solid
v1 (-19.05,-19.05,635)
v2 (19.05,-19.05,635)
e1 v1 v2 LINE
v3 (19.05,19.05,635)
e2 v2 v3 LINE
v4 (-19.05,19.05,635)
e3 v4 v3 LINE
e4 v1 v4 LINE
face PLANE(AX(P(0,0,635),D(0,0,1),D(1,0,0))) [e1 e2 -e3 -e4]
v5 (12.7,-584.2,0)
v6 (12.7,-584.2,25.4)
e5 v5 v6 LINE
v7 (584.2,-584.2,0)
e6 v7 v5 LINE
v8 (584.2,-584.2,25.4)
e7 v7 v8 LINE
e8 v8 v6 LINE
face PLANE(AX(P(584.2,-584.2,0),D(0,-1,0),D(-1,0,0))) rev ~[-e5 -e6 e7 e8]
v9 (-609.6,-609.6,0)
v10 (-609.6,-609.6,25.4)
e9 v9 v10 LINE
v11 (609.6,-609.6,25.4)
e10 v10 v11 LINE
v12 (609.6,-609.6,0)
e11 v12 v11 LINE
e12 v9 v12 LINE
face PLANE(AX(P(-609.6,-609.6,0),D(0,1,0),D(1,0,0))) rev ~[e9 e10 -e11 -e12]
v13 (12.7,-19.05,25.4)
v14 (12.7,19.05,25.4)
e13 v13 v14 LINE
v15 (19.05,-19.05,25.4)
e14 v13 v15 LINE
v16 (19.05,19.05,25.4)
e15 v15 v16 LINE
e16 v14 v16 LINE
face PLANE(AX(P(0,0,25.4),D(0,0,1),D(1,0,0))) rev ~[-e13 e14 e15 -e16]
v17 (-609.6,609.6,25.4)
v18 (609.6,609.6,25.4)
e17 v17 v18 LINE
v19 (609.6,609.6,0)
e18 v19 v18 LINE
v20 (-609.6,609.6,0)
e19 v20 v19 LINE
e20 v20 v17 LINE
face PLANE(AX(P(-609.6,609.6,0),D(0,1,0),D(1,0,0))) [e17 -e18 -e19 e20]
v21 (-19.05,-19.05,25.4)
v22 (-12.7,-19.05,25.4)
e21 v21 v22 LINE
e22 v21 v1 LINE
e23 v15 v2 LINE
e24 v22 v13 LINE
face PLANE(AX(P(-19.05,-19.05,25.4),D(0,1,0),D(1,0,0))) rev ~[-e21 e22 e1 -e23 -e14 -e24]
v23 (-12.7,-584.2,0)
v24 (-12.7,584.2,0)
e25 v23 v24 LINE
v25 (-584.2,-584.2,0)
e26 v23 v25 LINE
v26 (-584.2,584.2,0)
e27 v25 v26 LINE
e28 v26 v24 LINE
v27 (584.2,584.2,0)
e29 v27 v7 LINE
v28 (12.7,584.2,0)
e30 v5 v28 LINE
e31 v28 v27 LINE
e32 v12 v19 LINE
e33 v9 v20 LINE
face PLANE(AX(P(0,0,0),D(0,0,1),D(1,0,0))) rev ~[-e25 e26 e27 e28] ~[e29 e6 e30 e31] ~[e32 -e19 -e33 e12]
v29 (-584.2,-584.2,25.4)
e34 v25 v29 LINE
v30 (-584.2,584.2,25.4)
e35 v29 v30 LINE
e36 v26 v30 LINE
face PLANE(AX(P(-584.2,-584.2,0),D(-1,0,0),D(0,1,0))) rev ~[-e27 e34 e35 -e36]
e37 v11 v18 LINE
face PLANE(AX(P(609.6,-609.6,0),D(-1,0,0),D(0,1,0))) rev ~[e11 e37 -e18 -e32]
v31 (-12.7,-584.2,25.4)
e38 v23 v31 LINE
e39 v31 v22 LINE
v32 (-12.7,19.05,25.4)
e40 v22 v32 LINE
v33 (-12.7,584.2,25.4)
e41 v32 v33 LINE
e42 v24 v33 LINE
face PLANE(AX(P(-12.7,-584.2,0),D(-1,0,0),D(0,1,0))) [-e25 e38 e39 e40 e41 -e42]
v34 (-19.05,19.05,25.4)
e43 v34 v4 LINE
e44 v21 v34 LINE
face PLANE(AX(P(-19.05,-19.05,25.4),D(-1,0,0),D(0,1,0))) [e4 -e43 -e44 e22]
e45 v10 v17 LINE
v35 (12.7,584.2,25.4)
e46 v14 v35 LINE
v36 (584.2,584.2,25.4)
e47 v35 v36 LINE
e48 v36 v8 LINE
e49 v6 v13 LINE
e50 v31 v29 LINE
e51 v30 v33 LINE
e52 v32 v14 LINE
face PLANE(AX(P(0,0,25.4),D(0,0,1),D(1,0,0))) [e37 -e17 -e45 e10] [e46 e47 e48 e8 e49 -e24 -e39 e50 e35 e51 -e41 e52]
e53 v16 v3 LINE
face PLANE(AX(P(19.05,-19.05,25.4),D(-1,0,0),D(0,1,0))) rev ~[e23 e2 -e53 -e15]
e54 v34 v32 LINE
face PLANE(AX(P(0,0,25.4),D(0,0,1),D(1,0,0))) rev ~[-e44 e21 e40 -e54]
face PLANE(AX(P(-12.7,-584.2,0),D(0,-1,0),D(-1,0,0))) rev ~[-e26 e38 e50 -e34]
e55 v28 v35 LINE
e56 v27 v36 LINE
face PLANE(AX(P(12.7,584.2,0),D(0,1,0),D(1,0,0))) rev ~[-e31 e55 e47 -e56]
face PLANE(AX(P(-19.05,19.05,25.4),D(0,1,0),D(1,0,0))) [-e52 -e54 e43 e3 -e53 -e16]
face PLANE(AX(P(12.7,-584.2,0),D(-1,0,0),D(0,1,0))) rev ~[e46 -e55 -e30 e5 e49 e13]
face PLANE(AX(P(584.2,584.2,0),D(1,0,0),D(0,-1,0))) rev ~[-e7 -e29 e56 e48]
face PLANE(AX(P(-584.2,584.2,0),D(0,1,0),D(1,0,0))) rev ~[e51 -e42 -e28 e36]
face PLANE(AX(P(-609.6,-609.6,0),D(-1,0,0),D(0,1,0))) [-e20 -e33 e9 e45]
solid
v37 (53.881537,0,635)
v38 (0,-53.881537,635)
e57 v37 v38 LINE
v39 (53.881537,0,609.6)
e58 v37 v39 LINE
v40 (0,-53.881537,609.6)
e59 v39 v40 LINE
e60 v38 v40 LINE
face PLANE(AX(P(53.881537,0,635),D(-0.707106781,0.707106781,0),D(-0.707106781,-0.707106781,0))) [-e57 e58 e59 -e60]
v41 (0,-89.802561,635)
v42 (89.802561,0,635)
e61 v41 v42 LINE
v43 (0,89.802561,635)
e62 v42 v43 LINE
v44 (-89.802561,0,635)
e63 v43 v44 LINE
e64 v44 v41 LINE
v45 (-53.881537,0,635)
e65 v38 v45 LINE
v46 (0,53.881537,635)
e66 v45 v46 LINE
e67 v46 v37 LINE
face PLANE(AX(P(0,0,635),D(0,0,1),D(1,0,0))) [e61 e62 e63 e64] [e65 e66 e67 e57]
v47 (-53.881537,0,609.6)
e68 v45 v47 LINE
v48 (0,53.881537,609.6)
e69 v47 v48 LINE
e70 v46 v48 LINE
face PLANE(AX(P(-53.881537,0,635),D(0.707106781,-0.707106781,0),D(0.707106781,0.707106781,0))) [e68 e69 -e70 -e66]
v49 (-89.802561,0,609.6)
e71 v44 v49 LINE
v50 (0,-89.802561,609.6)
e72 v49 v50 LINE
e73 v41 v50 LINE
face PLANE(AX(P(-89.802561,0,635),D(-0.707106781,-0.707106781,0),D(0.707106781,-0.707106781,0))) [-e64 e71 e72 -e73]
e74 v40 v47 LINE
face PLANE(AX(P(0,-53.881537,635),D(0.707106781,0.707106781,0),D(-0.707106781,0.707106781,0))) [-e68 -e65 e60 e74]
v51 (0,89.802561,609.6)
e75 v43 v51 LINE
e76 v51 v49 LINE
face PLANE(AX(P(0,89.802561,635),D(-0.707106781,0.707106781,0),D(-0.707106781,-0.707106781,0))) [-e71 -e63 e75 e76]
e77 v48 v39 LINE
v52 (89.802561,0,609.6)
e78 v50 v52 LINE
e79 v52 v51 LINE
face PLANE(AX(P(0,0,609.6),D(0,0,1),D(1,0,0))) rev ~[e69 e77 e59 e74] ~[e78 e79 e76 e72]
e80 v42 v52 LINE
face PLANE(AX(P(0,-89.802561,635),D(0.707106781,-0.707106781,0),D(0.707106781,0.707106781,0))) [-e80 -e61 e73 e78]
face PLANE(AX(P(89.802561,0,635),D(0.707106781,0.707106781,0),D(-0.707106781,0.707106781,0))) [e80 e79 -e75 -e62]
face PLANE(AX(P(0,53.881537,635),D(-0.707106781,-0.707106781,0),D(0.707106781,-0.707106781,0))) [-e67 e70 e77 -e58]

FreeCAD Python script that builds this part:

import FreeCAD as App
import Part
import Sketcher
from FreeCAD import Vector
Q = App.Units.Quantity

doc = App.newDocument("Part")
body = doc.addObject("PartDesign::Body", "Body")

# Sketch on XY plane
sketch1 = doc.addObject("Sketcher::SketchObject", "Sketch")
body.addObject(sketch1)
sketch1.AttachmentSupport = (doc.XY_Plane, [""])
sketch1.MapMode = "FlatFace"
sketch1.addGeometry([
    Part.LineSegment(Vector(-609.6, 609.6, 0), Vector(-609.6, -609.6, 0)),  # 0
    Part.LineSegment(Vector(-609.6, -609.6, 0), Vector(609.6, -609.6, 0)),  # 1
    Part.LineSegment(Vector(609.6, -609.6, 0), Vector(609.6, 609.6, 0)),  # 2
    Part.LineSegment(Vector(609.6, 609.6, 0), Vector(-609.6, 609.6, 0)),  # 3
    Part.LineSegment(Vector(584.2, -584.2, 0), Vector(12.7, -584.2, 0)),  # 4
    Part.LineSegment(Vector(12.7, -584.2, 0), Vector(12.7, 584.2, 0)),  # 5
    Part.LineSegment(Vector(12.7, 584.2, 0), Vector(584.2, 584.2, 0)),  # 6
    Part.LineSegment(Vector(584.2, 584.2, 0), Vector(584.2, -584.2, 0)),  # 7
    Part.LineSegment(Vector(-12.7, -584.2, 0), Vector(-584.2, -584.2, 0)),  # 8
    Part.LineSegment(Vector(-584.2, -584.2, 0), Vector(-584.2, 584.2, 0)),  # 9
    Part.LineSegment(Vector(-584.2, 584.2, 0), Vector(-12.7, 584.2, 0)),  # 10
    Part.LineSegment(Vector(-12.7, 584.2, 0), Vector(-12.7, -584.2, 0)),  # 11
], False)
sketch1.addConstraint([
    Sketcher.Constraint("Coincident", 0, 2, 1, 1),
    Sketcher.Constraint("Coincident", 1, 2, 2, 1),
    Sketcher.Constraint("Coincident", 2, 2, 3, 1),
    Sketcher.Constraint("Coincident", 3, 2, 0, 1),
    Sketcher.Constraint("Coincident", 4, 2, 5, 1),
    Sketcher.Constraint("Coincident", 5, 2, 6, 1),
    Sketcher.Constraint("Coincident", 6, 2, 7, 1),
    Sketcher.Constraint("Coincident", 7, 2, 4, 1),
    Sketcher.Constraint("Coincident", 8, 2, 9, 1),
    Sketcher.Constraint("Coincident", 9, 2, 10, 1),
    Sketcher.Constraint("Coincident", 10, 2, 11, 1),
    Sketcher.Constraint("Coincident", 11, 2, 8, 1),
    Sketcher.Constraint("Vertical", 0),
    Sketcher.Constraint("Horizontal", 1),
    Sketcher.Constraint("Vertical", 2),
    Sketcher.Constraint("Horizontal", 3),
    Sketcher.Constraint("Horizontal", 4),
    Sketcher.Constraint("Vertical", 5),
    Sketcher.Constraint("Horizontal", 6),
    Sketcher.Constraint("Vertical", 7),
    Sketcher.Constraint("Horizontal", 8),
    Sketcher.Constraint("Vertical", 9),
    Sketcher.Constraint("Horizontal", 10),
    Sketcher.Constraint("Vertical", 11),
    Sketcher.Constraint("Symmetric", 0, 2, 2, 2, -1, 1),
    Sketcher.Constraint("Symmetric", 6, 2, 8, 2, -1, 1),
    Sketcher.Constraint("Symmetric", 4, 2, 10, 2, -1, 1),
    Sketcher.Constraint("Horizontal", 7, 2, 8, 2),
    Sketcher.Constraint("Equal", 3, 0),
    Sketcher.Constraint("DistanceX", 1, 1, 1, 2, Q("48 in")),
    Sketcher.Constraint("DistanceY", 5, 1, 5, 2, Q("46 in")),
    Sketcher.Constraint("DistanceX", 4, 2, 4, 1, Q("22.5 in")),
    Sketcher.Constraint("DistanceX", -1, 1, 6, 2, Q("23 in")),
])
pad1 = doc.addObject("PartDesign::Pad", "Pad")
body.addObject(pad1)
pad1.Profile = sketch1
pad1.Length = Q("1 in")

# Sketch on XY plane
sketch2 = doc.addObject("Sketcher::SketchObject", "Sketch001")
body.addObject(sketch2)
sketch2.AttachmentSupport = (doc.XY_Plane, [""])
sketch2.MapMode = "FlatFace"
sketch2.AttachmentOffset = App.Placement(Vector(0, 0, 1 * 25.4), App.Rotation())
sketch2.addGeometry([
    Part.LineSegment(Vector(-19.05, 19.05, 0), Vector(-19.05, -19.05, 0)),
    Part.LineSegment(Vector(-19.05, -19.05, 0), Vector(19.05, -19.05, 0)),
    Part.LineSegment(Vector(19.05, -19.05, 0), Vector(19.05, 19.05, 0)),
    Part.LineSegment(Vector(19.05, 19.05, 0), Vector(-19.05, 19.05, 0)),
], False)
sketch2.addConstraint([
    Sketcher.Constraint("Coincident", 0, 2, 1, 1),
    Sketcher.Constraint("Coincident", 1, 2, 2, 1),
    Sketcher.Constraint("Coincident", 2, 2, 3, 1),
    Sketcher.Constraint("Coincident", 3, 2, 0, 1),
    Sketcher.Constraint("Vertical", 0),
    Sketcher.Constraint("Horizontal", 1),
    Sketcher.Constraint("Vertical", 2),
    Sketcher.Constraint("Horizontal", 3),
    Sketcher.Constraint("Symmetric", 0, 2, 2, 2, -1, 1),
    Sketcher.Constraint("Equal", 3, 0),
    Sketcher.Constraint("DistanceX", 1, 1, 1, 2, Q("1.5 in")),
])
pad2 = doc.addObject("PartDesign::Pad", "Pad001")
body.addObject(pad2)
pad2.Profile = sketch2
pad2.Length = Q("24 in")
body2 = doc.addObject("PartDesign::Body", "Body001")

# Sketch on XY plane
sketch3 = doc.addObject("Sketcher::SketchObject", "Sketch002")
body2.addObject(sketch3)
sketch3.AttachmentSupport = (doc.getObject("XY_Plane001"), [""])
sketch3.MapMode = "FlatFace"
sketch3.AttachmentOffset = App.Placement(Vector(0, 0, 25 * 25.4), App.Rotation())
sketch3.addGeometry([
    Part.LineSegment(Vector(89.802561, 0, 0), Vector(0, 89.802561, 0)),  # 0
    Part.LineSegment(Vector(0, 89.802561, 0), Vector(-89.802561, 0, 0)),  # 1
    Part.LineSegment(Vector(-89.802561, 0, 0), Vector(0, -89.802561, 0)),  # 2
    Part.LineSegment(Vector(0, -89.802561, 0), Vector(89.802561, 0, 0)),  # 3
    Part.LineSegment(Vector(53.881537, 0, 0), Vector(0, -53.881537, 0)),  # 4
    Part.LineSegment(Vector(0, -53.881537, 0), Vector(-53.881537, 0, 0)),  # 5
    Part.LineSegment(Vector(-53.881537, 0, 0), Vector(0, 53.881537, 0)),  # 6
    Part.LineSegment(Vector(0, 53.881537, 0), Vector(53.881537, 0, 0)),  # 7
], False)
sketch3.addConstraint([
    Sketcher.Constraint("Coincident", 0, 2, 1, 1),
    Sketcher.Constraint("Coincident", 1, 2, 2, 1),
    Sketcher.Constraint("Coincident", 2, 2, 3, 1),
    Sketcher.Constraint("Coincident", 3, 2, 0, 1),
    Sketcher.Constraint("Coincident", 4, 2, 5, 1),
    Sketcher.Constraint("Coincident", 5, 2, 6, 1),
    Sketcher.Constraint("Coincident", 6, 2, 7, 1),
    Sketcher.Constraint("Coincident", 7, 2, 4, 1),
    Sketcher.Constraint("Symmetric", 0, 2, 2, 2, -1, 1),
    Sketcher.Constraint("Symmetric", 1, 2, 3, 2, -1, 1),
    Sketcher.Constraint("Symmetric", 4, 2, 6, 2, -1, 1),
    Sketcher.Constraint("Symmetric", 5, 2, 7, 2, -1, 1),
    Sketcher.Constraint("PointOnObject", 0, 2, -2),
    Sketcher.Constraint("PointOnObject", 1, 2, -1),
    Sketcher.Constraint("PointOnObject", 4, 2, -2),
    Sketcher.Constraint("PointOnObject", 5, 2, -1),
    Sketcher.Constraint("Perpendicular", 0, 1),
    Sketcher.Constraint("Parallel", 3, 4),
    Sketcher.Constraint("Distance", 0, Q("5 in")),
    Sketcher.Constraint("Distance", 4, Q("3 in")),
])
pad3 = doc.addObject("PartDesign::Pad", "Pad002")
body2.addObject(pad3)
pad3.Profile = sketch3
pad3.Length = Q("1 in")
pad3.Reversed = True

doc.recompute()
